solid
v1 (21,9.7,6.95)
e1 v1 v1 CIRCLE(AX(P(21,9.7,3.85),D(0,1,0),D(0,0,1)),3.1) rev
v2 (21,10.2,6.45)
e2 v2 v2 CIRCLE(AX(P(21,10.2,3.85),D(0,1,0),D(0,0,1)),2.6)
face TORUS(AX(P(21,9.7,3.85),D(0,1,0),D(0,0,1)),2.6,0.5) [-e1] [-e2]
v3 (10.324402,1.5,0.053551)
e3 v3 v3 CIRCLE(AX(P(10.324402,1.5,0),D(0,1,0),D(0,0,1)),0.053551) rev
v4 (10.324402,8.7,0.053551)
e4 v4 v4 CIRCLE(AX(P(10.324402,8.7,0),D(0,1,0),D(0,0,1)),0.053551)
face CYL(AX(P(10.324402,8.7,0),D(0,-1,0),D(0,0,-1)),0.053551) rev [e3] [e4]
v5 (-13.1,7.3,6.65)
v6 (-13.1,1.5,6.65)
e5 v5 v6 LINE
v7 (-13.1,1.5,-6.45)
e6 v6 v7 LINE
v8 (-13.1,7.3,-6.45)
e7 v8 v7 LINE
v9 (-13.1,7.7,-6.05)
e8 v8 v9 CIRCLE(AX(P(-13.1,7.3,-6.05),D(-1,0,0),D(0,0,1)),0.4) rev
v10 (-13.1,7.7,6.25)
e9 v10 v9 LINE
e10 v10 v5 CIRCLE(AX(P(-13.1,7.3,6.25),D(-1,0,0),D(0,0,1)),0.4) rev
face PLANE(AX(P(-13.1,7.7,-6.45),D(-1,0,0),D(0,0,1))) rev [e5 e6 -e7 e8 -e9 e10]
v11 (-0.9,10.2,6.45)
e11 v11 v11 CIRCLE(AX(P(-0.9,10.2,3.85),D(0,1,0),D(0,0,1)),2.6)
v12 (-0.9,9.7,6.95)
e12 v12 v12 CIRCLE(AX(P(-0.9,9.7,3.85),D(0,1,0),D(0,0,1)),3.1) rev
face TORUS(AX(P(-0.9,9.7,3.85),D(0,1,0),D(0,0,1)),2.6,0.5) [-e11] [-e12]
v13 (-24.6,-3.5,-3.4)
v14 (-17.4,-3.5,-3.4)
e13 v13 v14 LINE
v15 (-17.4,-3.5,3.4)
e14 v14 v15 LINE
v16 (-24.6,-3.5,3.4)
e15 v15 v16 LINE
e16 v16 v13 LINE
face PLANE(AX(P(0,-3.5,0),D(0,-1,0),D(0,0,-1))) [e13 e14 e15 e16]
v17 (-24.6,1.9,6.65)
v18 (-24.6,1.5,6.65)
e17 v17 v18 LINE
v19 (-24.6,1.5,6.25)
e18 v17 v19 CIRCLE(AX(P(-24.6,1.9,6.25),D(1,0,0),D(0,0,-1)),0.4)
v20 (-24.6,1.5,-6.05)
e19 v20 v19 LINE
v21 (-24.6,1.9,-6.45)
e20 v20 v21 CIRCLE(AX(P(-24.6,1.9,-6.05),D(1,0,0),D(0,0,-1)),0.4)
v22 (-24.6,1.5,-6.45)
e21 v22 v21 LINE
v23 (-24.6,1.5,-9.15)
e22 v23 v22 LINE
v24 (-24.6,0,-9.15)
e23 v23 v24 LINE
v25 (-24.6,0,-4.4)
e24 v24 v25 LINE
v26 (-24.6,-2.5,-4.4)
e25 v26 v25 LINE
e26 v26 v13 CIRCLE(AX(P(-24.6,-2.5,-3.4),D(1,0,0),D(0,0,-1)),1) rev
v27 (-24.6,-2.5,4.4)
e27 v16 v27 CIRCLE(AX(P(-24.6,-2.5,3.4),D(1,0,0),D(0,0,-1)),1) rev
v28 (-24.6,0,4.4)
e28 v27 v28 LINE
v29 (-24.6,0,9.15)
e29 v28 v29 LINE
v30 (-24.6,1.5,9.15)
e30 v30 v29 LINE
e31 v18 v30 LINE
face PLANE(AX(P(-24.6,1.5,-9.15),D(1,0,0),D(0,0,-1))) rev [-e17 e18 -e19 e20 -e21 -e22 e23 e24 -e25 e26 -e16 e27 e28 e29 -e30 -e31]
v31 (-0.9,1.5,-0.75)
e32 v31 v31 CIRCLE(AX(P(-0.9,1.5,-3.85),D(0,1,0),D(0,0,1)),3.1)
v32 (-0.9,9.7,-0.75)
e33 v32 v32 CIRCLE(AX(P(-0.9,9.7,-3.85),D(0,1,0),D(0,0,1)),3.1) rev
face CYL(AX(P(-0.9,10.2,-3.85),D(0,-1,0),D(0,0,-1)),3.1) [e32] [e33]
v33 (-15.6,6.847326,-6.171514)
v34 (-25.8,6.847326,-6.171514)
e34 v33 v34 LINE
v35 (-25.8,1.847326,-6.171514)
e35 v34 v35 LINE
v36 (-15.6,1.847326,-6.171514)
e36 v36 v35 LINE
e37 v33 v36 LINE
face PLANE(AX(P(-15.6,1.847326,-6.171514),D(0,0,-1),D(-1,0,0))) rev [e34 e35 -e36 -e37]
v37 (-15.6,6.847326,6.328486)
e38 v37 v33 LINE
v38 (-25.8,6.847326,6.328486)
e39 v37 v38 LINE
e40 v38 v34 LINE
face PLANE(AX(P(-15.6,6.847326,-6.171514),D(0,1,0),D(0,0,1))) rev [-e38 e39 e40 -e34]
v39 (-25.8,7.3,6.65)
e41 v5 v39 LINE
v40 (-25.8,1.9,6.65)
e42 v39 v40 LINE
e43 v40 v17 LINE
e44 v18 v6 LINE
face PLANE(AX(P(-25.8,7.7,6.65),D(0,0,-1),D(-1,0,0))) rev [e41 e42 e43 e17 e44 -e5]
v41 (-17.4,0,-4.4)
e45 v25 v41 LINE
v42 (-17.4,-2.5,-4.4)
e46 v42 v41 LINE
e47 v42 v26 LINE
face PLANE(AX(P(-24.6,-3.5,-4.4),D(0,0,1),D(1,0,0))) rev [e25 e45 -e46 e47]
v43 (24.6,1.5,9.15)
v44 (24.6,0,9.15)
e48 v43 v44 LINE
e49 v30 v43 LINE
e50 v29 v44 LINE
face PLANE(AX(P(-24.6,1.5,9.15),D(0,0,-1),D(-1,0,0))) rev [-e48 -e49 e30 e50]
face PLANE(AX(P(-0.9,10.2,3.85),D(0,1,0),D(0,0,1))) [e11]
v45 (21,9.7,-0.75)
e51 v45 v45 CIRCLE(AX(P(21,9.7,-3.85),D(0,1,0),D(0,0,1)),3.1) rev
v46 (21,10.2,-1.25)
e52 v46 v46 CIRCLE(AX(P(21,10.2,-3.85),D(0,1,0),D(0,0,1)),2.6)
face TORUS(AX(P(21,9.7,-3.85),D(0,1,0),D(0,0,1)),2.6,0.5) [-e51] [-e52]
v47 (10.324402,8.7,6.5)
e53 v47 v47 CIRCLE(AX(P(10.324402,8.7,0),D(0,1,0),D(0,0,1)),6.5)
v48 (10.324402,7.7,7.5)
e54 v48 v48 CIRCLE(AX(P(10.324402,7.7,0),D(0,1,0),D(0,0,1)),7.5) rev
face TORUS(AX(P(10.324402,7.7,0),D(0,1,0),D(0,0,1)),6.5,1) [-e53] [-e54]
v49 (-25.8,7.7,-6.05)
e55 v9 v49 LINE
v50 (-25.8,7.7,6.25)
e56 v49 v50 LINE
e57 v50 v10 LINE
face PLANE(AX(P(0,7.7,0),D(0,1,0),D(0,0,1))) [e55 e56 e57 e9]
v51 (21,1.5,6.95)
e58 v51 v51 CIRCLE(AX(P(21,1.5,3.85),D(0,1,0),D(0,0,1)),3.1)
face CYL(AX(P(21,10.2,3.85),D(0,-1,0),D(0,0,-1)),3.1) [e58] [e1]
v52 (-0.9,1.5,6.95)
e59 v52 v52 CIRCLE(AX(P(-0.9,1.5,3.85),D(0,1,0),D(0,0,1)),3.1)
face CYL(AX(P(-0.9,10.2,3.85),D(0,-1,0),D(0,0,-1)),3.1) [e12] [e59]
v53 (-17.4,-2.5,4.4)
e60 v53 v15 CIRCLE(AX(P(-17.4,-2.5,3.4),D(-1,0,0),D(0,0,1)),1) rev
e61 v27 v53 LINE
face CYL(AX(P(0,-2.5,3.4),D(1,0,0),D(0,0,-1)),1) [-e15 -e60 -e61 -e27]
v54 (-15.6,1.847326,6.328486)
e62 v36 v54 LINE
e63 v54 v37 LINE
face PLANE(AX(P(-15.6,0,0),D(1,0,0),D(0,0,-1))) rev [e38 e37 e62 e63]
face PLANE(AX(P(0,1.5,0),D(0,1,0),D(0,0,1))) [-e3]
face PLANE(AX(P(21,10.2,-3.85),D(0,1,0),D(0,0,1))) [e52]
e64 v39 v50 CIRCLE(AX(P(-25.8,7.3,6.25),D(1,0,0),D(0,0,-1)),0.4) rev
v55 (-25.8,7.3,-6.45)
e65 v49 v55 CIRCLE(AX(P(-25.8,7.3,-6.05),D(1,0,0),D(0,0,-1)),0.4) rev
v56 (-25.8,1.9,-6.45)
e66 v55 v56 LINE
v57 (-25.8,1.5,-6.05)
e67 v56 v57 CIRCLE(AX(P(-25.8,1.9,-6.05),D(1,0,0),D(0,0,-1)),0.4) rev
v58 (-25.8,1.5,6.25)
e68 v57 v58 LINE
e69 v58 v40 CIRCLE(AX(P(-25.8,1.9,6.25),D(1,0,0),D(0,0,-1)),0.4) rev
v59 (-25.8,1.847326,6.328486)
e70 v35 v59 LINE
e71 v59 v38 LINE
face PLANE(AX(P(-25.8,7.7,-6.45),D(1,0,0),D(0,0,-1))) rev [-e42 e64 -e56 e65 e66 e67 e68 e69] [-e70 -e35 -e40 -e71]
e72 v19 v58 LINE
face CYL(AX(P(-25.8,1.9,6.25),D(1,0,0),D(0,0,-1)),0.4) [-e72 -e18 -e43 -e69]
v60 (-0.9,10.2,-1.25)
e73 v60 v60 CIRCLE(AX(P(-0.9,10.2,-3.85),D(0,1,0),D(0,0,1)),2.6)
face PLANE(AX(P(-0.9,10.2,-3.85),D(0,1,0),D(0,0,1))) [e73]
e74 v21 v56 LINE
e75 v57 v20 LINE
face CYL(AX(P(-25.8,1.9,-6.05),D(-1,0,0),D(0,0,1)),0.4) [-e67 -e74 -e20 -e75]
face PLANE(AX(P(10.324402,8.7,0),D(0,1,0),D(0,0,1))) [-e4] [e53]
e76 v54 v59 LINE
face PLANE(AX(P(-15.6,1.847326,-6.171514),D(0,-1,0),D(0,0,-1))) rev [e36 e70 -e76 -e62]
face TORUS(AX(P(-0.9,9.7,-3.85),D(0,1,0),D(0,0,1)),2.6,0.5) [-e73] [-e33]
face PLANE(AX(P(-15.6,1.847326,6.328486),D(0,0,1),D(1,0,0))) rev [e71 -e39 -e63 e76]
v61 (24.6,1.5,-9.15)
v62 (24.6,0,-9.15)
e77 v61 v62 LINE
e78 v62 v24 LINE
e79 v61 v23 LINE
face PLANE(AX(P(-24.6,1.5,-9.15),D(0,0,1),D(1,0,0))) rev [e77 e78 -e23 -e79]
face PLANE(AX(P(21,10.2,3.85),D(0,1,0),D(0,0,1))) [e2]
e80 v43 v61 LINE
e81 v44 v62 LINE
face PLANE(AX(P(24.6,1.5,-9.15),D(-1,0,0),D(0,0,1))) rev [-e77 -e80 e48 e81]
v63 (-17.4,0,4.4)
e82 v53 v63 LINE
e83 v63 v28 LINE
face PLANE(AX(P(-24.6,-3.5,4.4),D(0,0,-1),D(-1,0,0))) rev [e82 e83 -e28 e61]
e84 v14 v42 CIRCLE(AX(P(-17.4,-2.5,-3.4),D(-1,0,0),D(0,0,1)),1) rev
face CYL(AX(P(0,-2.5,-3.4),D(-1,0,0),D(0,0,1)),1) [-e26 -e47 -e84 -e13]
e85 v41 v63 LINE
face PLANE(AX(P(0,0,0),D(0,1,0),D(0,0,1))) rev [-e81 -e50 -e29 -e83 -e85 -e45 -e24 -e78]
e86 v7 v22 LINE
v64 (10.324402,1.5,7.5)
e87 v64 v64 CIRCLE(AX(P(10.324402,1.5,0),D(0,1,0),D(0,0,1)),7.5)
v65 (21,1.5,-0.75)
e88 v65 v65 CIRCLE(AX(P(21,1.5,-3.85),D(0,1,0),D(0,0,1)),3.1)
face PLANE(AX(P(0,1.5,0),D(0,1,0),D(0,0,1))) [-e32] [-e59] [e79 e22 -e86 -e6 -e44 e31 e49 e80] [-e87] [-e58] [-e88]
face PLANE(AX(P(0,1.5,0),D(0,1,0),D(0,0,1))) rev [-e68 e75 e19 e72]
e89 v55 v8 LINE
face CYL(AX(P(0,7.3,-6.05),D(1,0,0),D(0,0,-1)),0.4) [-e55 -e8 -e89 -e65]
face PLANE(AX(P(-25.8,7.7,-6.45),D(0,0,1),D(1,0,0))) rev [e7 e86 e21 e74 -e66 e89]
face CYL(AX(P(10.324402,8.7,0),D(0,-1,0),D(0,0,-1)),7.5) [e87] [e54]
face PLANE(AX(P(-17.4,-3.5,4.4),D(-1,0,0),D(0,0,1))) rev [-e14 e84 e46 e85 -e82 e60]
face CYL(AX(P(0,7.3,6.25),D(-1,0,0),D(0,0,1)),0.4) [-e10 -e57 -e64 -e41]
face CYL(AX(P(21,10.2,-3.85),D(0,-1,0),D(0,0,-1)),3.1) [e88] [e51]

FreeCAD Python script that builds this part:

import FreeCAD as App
import Part
import Sketcher

V = App.Vector
Q = App.Units.Quantity


def edges_at(feature, points):
    """Names of the edges that pass closest to the given points."""
    edges = feature.Shape.Edges
    near = lambda p: min(range(len(edges)), key=lambda i: edges[i].distToShape(Part.Vertex(*p))[0])
    return sorted({f"Edge{near(p) + 1}" for p in points})

doc = App.newDocument("Part")
params = doc.addObject("Spreadsheet::Sheet", "Params")
for row, (alias, value) in enumerate([
    ("sketch1_width", "49.2 mm"),
    ("sketch1_height", "18.3 mm"),
    ("pad1_length", "1.5 mm"),
    ("sketch2_width", "12.7 mm"),
    ("sketch2_height", "13.1 mm"),
    ("pad2_length", "6.2 mm"),
    ("sketch3_width", "7.2 mm"),
    ("sketch3_height", "8.8 mm"),
    ("pad3_length", "3.5 mm"),
    ("fillet_radius", "1 mm"),
    ("fillet2_radius", "0.4 mm"),
    ("sketch4_diameter", "6.2 mm"),
    ("pad4_length", "8.7 mm"),
    ("fillet3_radius", "0.5 mm"),
    ("sketch5_diameter", "15 mm"),
    ("pad5_length", "7.2 mm"),
    ("fillet4_radius", "1 mm"),
    ("sketch6_width", "5 mm"),
    ("sketch6_height", "12.5 mm"),
    ("pocket1_length", "10.2 mm"),
    ("fillet5_radius", "0.4 mm"),
], start=1):
    params.set(f"A{row}", alias)
    params.set(f"B{row}", "=" + value)
    params.setAlias(f"B{row}", alias)

body = doc.addObject("PartDesign::Body", "Body")

# Sketch on XZ plane
sketch1 = body.newObject("Sketcher::SketchObject", "Sketch")
sketch1.AttachmentSupport = (doc.getObject("XZ_Plane"), [""])
sketch1.MapMode = "FlatFace"
sketch1.addGeometry([
    Part.LineSegment(V(-25, -9, 0), V(-25, 9, 0)),
    Part.LineSegment(V(-25, 9, 0), V(25, 9, 0)),
    Part.LineSegment(V(25, 9, 0), V(25, -9, 0)),
    Part.LineSegment(V(25, -9, 0), V(-25, -9, 0)),
], False)
sketch1.addConstraint([
    Sketcher.Constraint("Coincident", 0, 2, 1, 1),
    Sketcher.Constraint("Coincident", 1, 2, 2, 1),
    Sketcher.Constraint("Coincident", 2, 2, 3, 1),
    Sketcher.Constraint("Coincident", 3, 2, 0, 1),
    Sketcher.Constraint("Vertical", 0),
    Sketcher.Constraint("Horizontal", 1),
    Sketcher.Constraint("Vertical", 2),
    Sketcher.Constraint("Horizontal", 3),
    Sketcher.Constraint("Symmetric", 0, 2, 2, 2, -1, 1),
    Sketcher.Constraint("DistanceX", 1, 1, 1, 2, Q("49.2 mm")),
    Sketcher.Constraint("DistanceY", 0, 1, 0, 2, Q("18.3 mm")),
])
sketch1.setExpression("Constraints[9]", "Params.sketch1_width")
sketch1.setExpression("Constraints[10]", "Params.sketch1_height")
pad1 = body.newObject("PartDesign::Pad", "Pad")
pad1.Profile = sketch1
pad1.setExpression("Length", "Params.pad1_length")
pad1.Reversed = True

# Sketch on XZ plane
sketch2 = body.newObject("Sketcher::SketchObject", "Sketch001")
sketch2.AttachmentSupport = (doc.getObject("XZ_Plane"), [""])
sketch2.MapMode = "FlatFace"
sketch2.AttachmentOffset = App.Placement(V(0, 0, -1.5), App.Rotation())
sketch2.addGeometry([
    Part.LineSegment(V(-26, -6, 0), V(-26, 7, 0)),
    Part.LineSegment(V(-26, 7, 0), V(-13, 7, 0)),
    Part.LineSegment(V(-13, 7, 0), V(-13, -6, 0)),
    Part.LineSegment(V(-13, -6, 0), V(-26, -6, 0)),
], False)
sketch2.addConstraint([
    Sketcher.Constraint("Coincident", 0, 2, 1, 1),
    Sketcher.Constraint("Coincident", 1, 2, 2, 1),
    Sketcher.Constraint("Coincident", 2, 2, 3, 1),
    Sketcher.Constraint("Coincident", 3, 2, 0, 1),
    Sketcher.Constraint("Vertical", 0),
    Sketcher.Constraint("Horizontal", 1),
    Sketcher.Constraint("Vertical", 2),
    Sketcher.Constraint("Horizontal", 3),
    Sketcher.Constraint("DistanceX", 1, 1, 1, 2, Q("12.7 mm")),
    Sketcher.Constraint("DistanceY", 0, 1, 0, 2, Q("13.1 mm")),
    Sketcher.Constraint("DistanceX", 0, 2, -1, 1, Q("25.8 mm")),
    Sketcher.Constraint("DistanceY", -1, 1, 0, 2, Q("6.65 mm")),
])
sketch2.setExpression("Constraints[8]", "Params.sketch2_width")
sketch2.setExpression("Constraints[9]", "Params.sketch2_height")
pad2 = body.newObject("PartDesign::Pad", "Pad001")
pad2.Profile = sketch2
pad2.setExpression("Length", "Params.pad2_length")
pad2.Reversed = True

# Sketch on XZ plane
sketch3 = body.newObject("Sketcher::SketchObject", "Sketch002")
sketch3.AttachmentSupport = (doc.getObject("XZ_Plane"), [""])
sketch3.MapMode = "FlatFace"
sketch3.addGeometry([
    Part.LineSegment(V(-25, 4, 0), V(-25, -4, 0)),
    Part.LineSegment(V(-25, -4, 0), V(-17, -4, 0)),
    Part.LineSegment(V(-17, -4, 0), V(-17, 4, 0)),
    Part.LineSegment(V(-17, 4, 0), V(-25, 4, 0)),
], False)
sketch3.addConstraint([
    Sketcher.Constraint("Coincident", 0, 2, 1, 1),
    Sketcher.Constraint("Coincident", 1, 2, 2, 1),
    Sketcher.Constraint("Coincident", 2, 2, 3, 1),
    Sketcher.Constraint("Coincident", 3, 2, 0, 1),
    Sketcher.Constraint("Vertical", 0),
    Sketcher.Constraint("Horizontal", 1),
    Sketcher.Constraint("Vertical", 2),
    Sketcher.Constraint("Horizontal", 3),
    Sketcher.Constraint("DistanceX", 1, 1, 1, 2, Q("7.2 mm")),
    Sketcher.Constraint("DistanceY", 0, 2, 0, 1, Q("8.8 mm")),
    Sketcher.Constraint("DistanceX", 0, 2, -1, 1, Q("24.6 mm")),
    Sketcher.Constraint("DistanceY", 0, 2, -1, 1, Q("4.4 mm")),
])
sketch3.setExpression("Constraints[8]", "Params.sketch3_width")
sketch3.setExpression("Constraints[9]", "Params.sketch3_height")
pad3 = body.newObject("PartDesign::Pad", "Pad002")
pad3.Profile = sketch3
pad3.setExpression("Length", "Params.pad3_length")
doc.recompute()

fillet = body.newObject("PartDesign::Fillet", "Fillet")
fillet.Base = (pad3, edges_at(pad3, [(-21, -3.5, 4.4), (-21, -3.5, -4.4)]))
fillet.setExpression("Radius", "Params.fillet_radius")
doc.recompute()

fillet2 = body.newObject("PartDesign::Fillet", "Fillet001")
fillet2.Base = (fillet, edges_at(fillet, [(-19.45, 7.7, -6.45), (-19.45, 7.7, 6.65)]))
fillet2.setExpression("Radius", "Params.fillet2_radius")

# Sketch on XZ plane
sketch4 = body.newObject("Sketcher::SketchObject", "Sketch003")
sketch4.AttachmentSupport = (doc.getObject("XZ_Plane"), [""])
sketch4.MapMode = "FlatFace"
sketch4.AttachmentOffset = App.Placement(V(0, 0, -1.5), App.Rotation())
sketch4.addGeometry([
    Part.Circle(V(21, -3.9, 0), V(0, 0, 1), 3.1),
    Part.Circle(V(21, 3.9, 0), V(0, 0, 1), 3.1),
    Part.Circle(V(-0.9, 3.9, 0), V(0, 0, 1), 3.1),
    Part.Circle(V(-0.9, -3.9, 0), V(0, 0, 1), 3.1),
], False)
sketch4.addConstraint([
    Sketcher.Constraint("Equal", 0, 1),
    Sketcher.Constraint("Equal", 1, 2),
    Sketcher.Constraint("Equal", 2, 3),
    Sketcher.Constraint("Symmetric", 0, 3, 1, 3, -1),
    Sketcher.Constraint("Symmetric", 2, 3, 3, 3, -1),
    Sketcher.Constraint("Horizontal", 1, 3, 2, 3),
    Sketcher.Constraint("Diameter", 0, Q("6.2 mm")),
    Sketcher.Constraint("DistanceX", -1, 1, 0, 3, Q("21 mm")),
    Sketcher.Constraint("DistanceX", 2, 3, -1, 1, Q("0.9 mm")),
    Sketcher.Constraint("DistanceY", 0, 3, 1, 3, Q("7.7 mm")),
])
sketch4.setExpression("Constraints[6]", "Params.sketch4_diameter")
pad4 = body.newObject("PartDesign::Pad", "Pad003")
pad4.Profile = sketch4
pad4.setExpression("Length", "Params.pad4_length")
pad4.Reversed = True
doc.recompute()

fillet3 = body.newObject("PartDesign::Fillet", "Fillet002")
fillet3.Base = (pad4, edges_at(pad4, [
    (21, 10.2, -6.95),
    (21, 10.2, 0.75),
    (-0.9, 10.2, 0.75),
    (-0.9, 10.2, -6.95),
]))
fillet3.setExpression("Radius", "Params.fillet3_radius")

# Sketch on XZ plane
sketch5 = body.newObject("Sketcher::SketchObject", "Sketch004")
sketch5.AttachmentSupport = (doc.getObject("XZ_Plane"), [""])
sketch5.MapMode = "FlatFace"
sketch5.AttachmentOffset = App.Placement(V(0, 0, -1.5), App.Rotation())
sketch5.addGeometry([
    Part.Circle(V(10.32, 0, 0), V(0, 0, 1), 7.5),
    Part.Circle(V(10.32, 0, 0), V(0, 0, 1), 0.05),
], False)
sketch5.addConstraint([
    Sketcher.Constraint("Coincident", 1, 3, 0, 3),
    Sketcher.Constraint("PointOnObject", 0, 3, -1),
    Sketcher.Constraint("Diameter", 0, Q("15 mm")),
    Sketcher.Constraint("Diameter", 1, Q("0.107102 mm")),
    Sketcher.Constraint("DistanceX", -1, 1, 0, 3, Q("10.324402 mm")),
])
sketch5.setExpression("Constraints[2]", "Params.sketch5_diameter")
pad5 = body.newObject("PartDesign::Pad", "Pad004")
pad5.Profile = sketch5
pad5.setExpression("Length", "Params.pad5_length")
pad5.Reversed = True
doc.recompute()

fillet4 = body.newObject("PartDesign::Fillet", "Fillet003")
fillet4.Base = (pad5, edges_at(pad5, [(10.324, 8.7, -7.5)]))
fillet4.setExpression("Radius", "Params.fillet4_radius")

# Sketch on YZ plane
sketch6 = body.newObject("Sketcher::SketchObject", "Sketch005")
sketch6.AttachmentSupport = (doc.getObject("YZ_Plane"), [""])
sketch6.MapMode = "FlatFace"
sketch6.AttachmentOffset = App.Placement(V(0, 0, -25.8), App.Rotation())
sketch6.addGeometry([
    Part.LineSegment(V(7, -6, 0), V(2, -6, 0)),
    Part.LineSegment(V(2, -6, 0), V(2, 6, 0)),
    Part.LineSegment(V(2, 6, 0), V(7, 6, 0)),
    Part.LineSegment(V(7, 6, 0), V(7, -6, 0)),
], False)
sketch6.addConstraint([
    Sketcher.Constraint("Coincident", 0, 2, 1, 1),
    Sketcher.Constraint("Coincident", 1, 2, 2, 1),
    Sketcher.Constraint("Coincident", 2, 2, 3, 1),
    Sketcher.Constraint("Coincident", 3, 2, 0, 1),
    Sketcher.Constraint("Horizontal", 0),
    Sketcher.Constraint("Vertical", 1),
    Sketcher.Constraint("Horizontal", 2),
    Sketcher.Constraint("Vertical", 3),
    Sketcher.Constraint("DistanceX", 0, 2, 0, 1, Q("5 mm")),
    Sketcher.Constraint("DistanceY", 1, 1, 1, 2, Q("12.5 mm")),
    Sketcher.Constraint("DistanceX", -1, 1, 0, 2, Q("1.847326 mm")),
    Sketcher.Constraint("DistanceY", 0, 2, -1, 1, Q("6.171514 mm")),
])
sketch6.setExpression("Constraints[8]", "Params.sketch6_width")
sketch6.setExpression("Constraints[9]", "Params.sketch6_height")
pocket1 = body.newObject("PartDesign::Pocket", "Pocket")
pocket1.Profile = sketch6
pocket1.setExpression("Length", "Params.pocket1_length")
pocket1.Reversed = True
doc.recompute()

fillet5 = body.newObject("PartDesign::Fillet", "Fillet004")
fillet5.Base = (pocket1, edges_at(pocket1, [(-25.2, 1.5, -6.45), (-25.2, 1.5, 6.65)]))
fillet5.setExpression("Radius", "Params.fillet5_radius")

doc.recompute()
